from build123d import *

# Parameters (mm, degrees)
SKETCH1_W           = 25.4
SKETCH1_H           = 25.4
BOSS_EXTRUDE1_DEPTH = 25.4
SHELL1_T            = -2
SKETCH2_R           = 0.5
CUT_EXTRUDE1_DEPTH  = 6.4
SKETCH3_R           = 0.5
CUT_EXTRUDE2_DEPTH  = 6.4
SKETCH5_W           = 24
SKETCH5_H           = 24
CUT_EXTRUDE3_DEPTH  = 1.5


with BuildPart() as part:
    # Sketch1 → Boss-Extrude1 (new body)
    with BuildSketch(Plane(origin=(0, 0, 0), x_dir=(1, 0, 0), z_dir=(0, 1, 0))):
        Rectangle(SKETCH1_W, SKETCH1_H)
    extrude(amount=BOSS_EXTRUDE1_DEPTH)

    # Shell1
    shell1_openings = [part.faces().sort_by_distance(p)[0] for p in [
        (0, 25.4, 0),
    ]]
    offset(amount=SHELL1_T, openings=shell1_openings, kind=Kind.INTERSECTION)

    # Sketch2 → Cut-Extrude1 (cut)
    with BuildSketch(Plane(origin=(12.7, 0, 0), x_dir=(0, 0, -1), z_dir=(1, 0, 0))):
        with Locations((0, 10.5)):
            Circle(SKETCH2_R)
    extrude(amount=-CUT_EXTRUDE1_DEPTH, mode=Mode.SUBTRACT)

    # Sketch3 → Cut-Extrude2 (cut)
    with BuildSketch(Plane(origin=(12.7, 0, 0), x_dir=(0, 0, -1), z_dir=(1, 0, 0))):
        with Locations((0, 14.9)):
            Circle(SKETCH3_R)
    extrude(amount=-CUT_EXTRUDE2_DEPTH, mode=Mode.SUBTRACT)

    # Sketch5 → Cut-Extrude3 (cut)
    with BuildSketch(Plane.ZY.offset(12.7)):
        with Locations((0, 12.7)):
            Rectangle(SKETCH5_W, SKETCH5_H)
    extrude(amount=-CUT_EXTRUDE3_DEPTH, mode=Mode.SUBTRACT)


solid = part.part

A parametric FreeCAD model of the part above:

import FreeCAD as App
import Part
import Sketcher

V = App.Vector
Q = App.Units.Quantity


def faces_at(feature, points):
    """Names of the faces that lie closest to the given points."""
    faces = feature.Shape.Faces
    near = lambda p: min(range(len(faces)), key=lambda i: faces[i].distToShape(Part.Vertex(*p))[0])
    return sorted({f"Face{near(p) + 1}" for p in points})

doc = App.newDocument("Part")
body = doc.addObject("PartDesign::Body", "Body")

# Sketch on XZ plane
sketch1 = body.newObject("Sketcher::SketchObject", "Sketch")
sketch1.AttachmentSupport = (doc.getObject("XZ_Plane"), [""])
sketch1.MapMode = "FlatFace"
sketch1.addGeometry([
    Part.LineSegment(V(-13, -13, 0), V(-13, 13, 0)),
    Part.LineSegment(V(-13, 13, 0), V(13, 13, 0)),
    Part.LineSegment(V(13, 13, 0), V(13, -13, 0)),
    Part.LineSegment(V(13, -13, 0), V(-13, -13, 0)),
], False)
sketch1.addConstraint([
    Sketcher.Constraint("Coincident", 0, 2, 1, 1),
    Sketcher.Constraint("Coincident", 1, 2, 2, 1),
    Sketcher.Constraint("Coincident", 2, 2, 3, 1),
    Sketcher.Constraint("Coincident", 3, 2, 0, 1),
    Sketcher.Constraint("Vertical", 0),
    Sketcher.Constraint("Horizontal", 1),
    Sketcher.Constraint("Vertical", 2),
    Sketcher.Constraint("Horizontal", 3),
    Sketcher.Constraint("Symmetric", 0, 2, 2, 2, -1, 1),
    Sketcher.Constraint("Equal", 3, 0),
    Sketcher.Constraint("DistanceX", 1, 1, 1, 2, Q("25.4 mm")),
])
pad1 = body.newObject("PartDesign::Pad", "Pad")
pad1.Profile = sketch1
pad1.Length = 25.4
pad1.Reversed = True
doc.recompute()

thickness = body.newObject("PartDesign::Thickness", "Thickness")
thickness.Base = (pad1, faces_at(pad1, [(0, 25.4, 0)]))
thickness.Value = 2
thickness.Reversed = True
thickness.Join = "Intersection"

# Sketch on YZ plane
sketch2 = body.newObject("Sketcher::SketchObject", "Sketch001")
sketch2.AttachmentSupport = (doc.getObject("YZ_Plane"), [""])
sketch2.MapMode = "FlatFace"
sketch2.AttachmentOffset = App.Placement(V(0, 0, 12.7), App.Rotation())
sketch2.addGeometry(Part.Circle(V(10.5, 0, 0), V(0, 0, 1), 0.5), False)
sketch2.addConstraint([
    Sketcher.Constraint("PointOnObject", 0, 3, -1),
    Sketcher.Constraint("Diameter", 0, Q("1 mm")),
    Sketcher.Constraint("DistanceX", -1, 1, 0, 3, Q("10.5 mm")),
])
pocket1 = body.newObject("PartDesign::Pocket", "Pocket")
pocket1.Profile = sketch2
pocket1.Length = 6.4

# Sketch on YZ plane
sketch3 = body.newObject("Sketcher::SketchObject", "Sketch002")
sketch3.AttachmentSupport = (doc.getObject("YZ_Plane"), [""])
sketch3.MapMode = "FlatFace"
sketch3.AttachmentOffset = App.Placement(V(0, 0, 12.7), App.Rotation())
sketch3.addGeometry(Part.Circle(V(14.9, 0, 0), V(0, 0, 1), 0.5), False)
sketch3.addConstraint([
    Sketcher.Constraint("PointOnObject", 0, 3, -1),
    Sketcher.Constraint("Diameter", 0, Q("1 mm")),
    Sketcher.Constraint("DistanceX", -1, 1, 0, 3, Q("14.9 mm")),
])
pocket2 = body.newObject("PartDesign::Pocket", "Pocket001")
pocket2.Profile = sketch3
pocket2.Length = 6.4

# Sketch on YZ plane
sketch4 = body.newObject("Sketcher::SketchObject", "Sketch003")
sketch4.AttachmentSupport = (doc.getObject("YZ_Plane"), [""])
sketch4.MapMode = "FlatFace"
sketch4.AttachmentOffset = App.Placement(V(0, 0, -12.7), App.Rotation())
sketch4.addGeometry([
    Part.LineSegment(V(25, -12, 0), V(1, -12, 0)),
    Part.LineSegment(V(1, -12, 0), V(1, 12, 0)),
    Part.LineSegment(V(1, 12, 0), V(25, 12, 0)),
    Part.LineSegment(V(25, 12, 0), V(25, -12, 0)),
], False)
sketch4.addConstraint([
    Sketcher.Constraint("Coincident", 0, 2, 1, 1),
    Sketcher.Constraint("Coincident", 1, 2, 2, 1),
    Sketcher.Constraint("Coincident", 2, 2, 3, 1),
    Sketcher.Constraint("Coincident", 3, 2, 0, 1),
    Sketcher.Constraint("Horizontal", 0),
    Sketcher.Constraint("Vertical", 1),
    Sketcher.Constraint("Horizontal", 2),
    Sketcher.Constraint("Vertical", 3),
    Sketcher.Constraint("Equal", 2, 1),
    Sketcher.Constraint("DistanceX", 0, 2, 0, 1, Q("24 mm")),
    Sketcher.Constraint("DistanceY", 0, 2, -1, 1, Q("12 mm")),
    Sketcher.Constraint("DistanceX", -1, 1, 0, 2, Q("0.7 mm")),
])
pocket3 = body.newObject("PartDesign::Pocket", "Pocket002")
pocket3.Profile = sketch4
pocket3.Length = 1.5
pocket3.Reversed = True

doc.recompute()
